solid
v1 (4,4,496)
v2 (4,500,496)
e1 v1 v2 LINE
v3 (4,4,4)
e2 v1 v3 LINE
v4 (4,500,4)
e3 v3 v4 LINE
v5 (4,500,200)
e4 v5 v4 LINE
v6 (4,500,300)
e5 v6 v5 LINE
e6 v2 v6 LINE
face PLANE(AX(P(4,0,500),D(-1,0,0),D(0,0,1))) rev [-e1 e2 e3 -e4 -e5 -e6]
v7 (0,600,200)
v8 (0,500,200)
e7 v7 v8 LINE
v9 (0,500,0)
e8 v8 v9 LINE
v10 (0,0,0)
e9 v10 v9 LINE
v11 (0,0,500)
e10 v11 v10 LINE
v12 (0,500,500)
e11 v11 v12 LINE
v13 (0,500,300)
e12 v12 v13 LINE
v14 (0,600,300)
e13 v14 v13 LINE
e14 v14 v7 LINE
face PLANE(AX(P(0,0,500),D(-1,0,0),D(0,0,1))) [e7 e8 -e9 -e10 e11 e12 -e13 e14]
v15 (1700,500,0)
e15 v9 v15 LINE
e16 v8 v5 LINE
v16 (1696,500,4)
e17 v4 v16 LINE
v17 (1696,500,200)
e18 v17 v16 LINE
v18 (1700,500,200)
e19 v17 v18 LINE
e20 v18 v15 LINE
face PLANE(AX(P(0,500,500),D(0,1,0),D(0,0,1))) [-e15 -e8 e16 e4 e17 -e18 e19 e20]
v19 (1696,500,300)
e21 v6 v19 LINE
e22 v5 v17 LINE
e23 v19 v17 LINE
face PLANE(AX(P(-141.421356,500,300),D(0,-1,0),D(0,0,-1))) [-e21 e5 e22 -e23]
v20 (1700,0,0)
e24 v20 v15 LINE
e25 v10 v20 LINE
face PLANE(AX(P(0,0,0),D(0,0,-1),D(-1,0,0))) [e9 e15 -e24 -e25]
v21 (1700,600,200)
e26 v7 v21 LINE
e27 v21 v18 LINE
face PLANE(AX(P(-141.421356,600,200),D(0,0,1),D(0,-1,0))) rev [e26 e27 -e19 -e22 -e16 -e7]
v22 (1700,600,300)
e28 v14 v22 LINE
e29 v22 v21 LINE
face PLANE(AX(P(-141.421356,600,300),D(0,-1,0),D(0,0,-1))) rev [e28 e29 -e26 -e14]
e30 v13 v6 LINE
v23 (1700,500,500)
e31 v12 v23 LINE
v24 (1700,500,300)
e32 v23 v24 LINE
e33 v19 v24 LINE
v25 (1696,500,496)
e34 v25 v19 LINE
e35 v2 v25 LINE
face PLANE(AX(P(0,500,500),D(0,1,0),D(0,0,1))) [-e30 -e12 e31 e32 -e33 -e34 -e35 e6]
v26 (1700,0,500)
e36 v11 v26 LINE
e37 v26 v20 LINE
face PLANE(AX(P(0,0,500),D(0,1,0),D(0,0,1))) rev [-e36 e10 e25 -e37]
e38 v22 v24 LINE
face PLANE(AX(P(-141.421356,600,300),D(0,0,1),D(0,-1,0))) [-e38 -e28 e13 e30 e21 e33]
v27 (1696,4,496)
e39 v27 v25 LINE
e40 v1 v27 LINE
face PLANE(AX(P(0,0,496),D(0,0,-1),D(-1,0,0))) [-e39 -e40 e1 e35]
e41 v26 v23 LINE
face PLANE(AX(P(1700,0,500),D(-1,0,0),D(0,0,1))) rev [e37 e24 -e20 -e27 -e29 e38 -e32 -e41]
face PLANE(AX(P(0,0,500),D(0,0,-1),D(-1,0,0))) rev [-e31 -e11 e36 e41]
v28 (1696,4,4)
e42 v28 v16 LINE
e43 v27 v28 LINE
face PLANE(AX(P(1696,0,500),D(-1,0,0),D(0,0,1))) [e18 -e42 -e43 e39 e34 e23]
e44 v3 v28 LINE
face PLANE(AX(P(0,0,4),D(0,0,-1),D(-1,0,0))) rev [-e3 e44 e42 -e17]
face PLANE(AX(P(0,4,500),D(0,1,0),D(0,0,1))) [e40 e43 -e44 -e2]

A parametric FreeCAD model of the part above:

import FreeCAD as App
import Part
import Sketcher

V = App.Vector


def faces_at(feature, points):
    """Names of the faces that lie closest to the given points."""
    faces = feature.Shape.Faces
    near = lambda p: min(range(len(faces)), key=lambda i: faces[i].distToShape(Part.Vertex(*p))[0])
    return sorted({f"Face{near(p) + 1}" for p in points})

doc = App.newDocument("Part")
body = doc.addObject("PartDesign::Body", "Body")

# Sketch on XY plane
sketch1 = doc.addObject("Sketcher::SketchObject", "Sketch")
body.addObject(sketch1)
sketch1.AttachmentSupport = (doc.XY_Plane, [""])
sketch1.MapMode = "FlatFace"
sketch1.addGeometry([
    Part.LineSegment(V(0, 500, 0), V(0, 0, 0)),
    Part.LineSegment(V(0, 0, 0), V(1700, 0, 0)),
    Part.LineSegment(V(1700, 0, 0), V(1700, 500, 0)),
    Part.LineSegment(V(1700, 500, 0), V(0, 500, 0)),
], False)
sketch1.addConstraint([
    Sketcher.Constraint("Coincident", 0, 2, 1, 1),
    Sketcher.Constraint("Coincident", 1, 2, 2, 1),
    Sketcher.Constraint("Coincident", 2, 2, 3, 1),
    Sketcher.Constraint("Coincident", 3, 2, 0, 1),
    Sketcher.Constraint("Vertical", 0),
    Sketcher.Constraint("Horizontal", 1),
    Sketcher.Constraint("Vertical", 2),
    Sketcher.Constraint("Horizontal", 3),
    Sketcher.Constraint("Coincident", 0, 2, -1, 1),
    Sketcher.Constraint("DistanceX", 1, 1, 1, 2, 1700.0),
    Sketcher.Constraint("DistanceY", 0, 2, 0, 1, 500.0),
])
pad1 = doc.addObject("PartDesign::Pad", "Pad")
body.addObject(pad1)
pad1.Profile = sketch1
pad1.Length = 500
doc.recompute()

thickness = doc.addObject("PartDesign::Thickness", "Thickness")
body.addObject(thickness)
thickness.Base = (pad1, faces_at(pad1, [(850, 500, 250)]))
thickness.Value = 4
thickness.Reversed = True
thickness.Join = "Intersection"

# Sketch on YZ plane
sketch2 = doc.addObject("Sketcher::SketchObject", "Sketch001")
body.addObject(sketch2)
sketch2.AttachmentSupport = (doc.YZ_Plane, [""])
sketch2.MapMode = "FlatFace"
sketch2.AttachmentOffset = App.Placement(V(0, 0, 1700), App.Rotation())
sketch2.addGeometry([
    Part.LineSegment(V(600, 300, 0), V(500, 300, 0)),
    Part.LineSegment(V(500, 300, 0), V(500, 200, 0)),
    Part.LineSegment(V(500, 200, 0), V(600, 200, 0)),
    Part.LineSegment(V(600, 200, 0), V(600, 300, 0)),
], False)
sketch2.addConstraint([
    Sketcher.Constraint("Coincident", 0, 2, 1, 1),
    Sketcher.Constraint("Coincident", 1, 2, 2, 1),
    Sketcher.Constraint("Coincident", 2, 2, 3, 1),
    Sketcher.Constraint("Coincident", 3, 2, 0, 1),
    Sketcher.Constraint("Horizontal", 0),
    Sketcher.Constraint("Vertical", 1),
    Sketcher.Constraint("Horizontal", 2),
    Sketcher.Constraint("Vertical", 3),
    Sketcher.Constraint("Equal", 2, 1),
    Sketcher.Constraint("DistanceX", 0, 2, 0, 1, 100.0),
    Sketcher.Constraint("DistanceX", -1, 1, 0, 2, 500.0),
    Sketcher.Constraint("DistanceY", -1, 1, 0, 2, 300.0),
])
pad2 = doc.addObject("PartDesign::Pad", "Pad001")
body.addObject(pad2)
pad2.Profile = sketch2
pad2.Length = 1700
pad2.Reversed = True

doc.recompute()
